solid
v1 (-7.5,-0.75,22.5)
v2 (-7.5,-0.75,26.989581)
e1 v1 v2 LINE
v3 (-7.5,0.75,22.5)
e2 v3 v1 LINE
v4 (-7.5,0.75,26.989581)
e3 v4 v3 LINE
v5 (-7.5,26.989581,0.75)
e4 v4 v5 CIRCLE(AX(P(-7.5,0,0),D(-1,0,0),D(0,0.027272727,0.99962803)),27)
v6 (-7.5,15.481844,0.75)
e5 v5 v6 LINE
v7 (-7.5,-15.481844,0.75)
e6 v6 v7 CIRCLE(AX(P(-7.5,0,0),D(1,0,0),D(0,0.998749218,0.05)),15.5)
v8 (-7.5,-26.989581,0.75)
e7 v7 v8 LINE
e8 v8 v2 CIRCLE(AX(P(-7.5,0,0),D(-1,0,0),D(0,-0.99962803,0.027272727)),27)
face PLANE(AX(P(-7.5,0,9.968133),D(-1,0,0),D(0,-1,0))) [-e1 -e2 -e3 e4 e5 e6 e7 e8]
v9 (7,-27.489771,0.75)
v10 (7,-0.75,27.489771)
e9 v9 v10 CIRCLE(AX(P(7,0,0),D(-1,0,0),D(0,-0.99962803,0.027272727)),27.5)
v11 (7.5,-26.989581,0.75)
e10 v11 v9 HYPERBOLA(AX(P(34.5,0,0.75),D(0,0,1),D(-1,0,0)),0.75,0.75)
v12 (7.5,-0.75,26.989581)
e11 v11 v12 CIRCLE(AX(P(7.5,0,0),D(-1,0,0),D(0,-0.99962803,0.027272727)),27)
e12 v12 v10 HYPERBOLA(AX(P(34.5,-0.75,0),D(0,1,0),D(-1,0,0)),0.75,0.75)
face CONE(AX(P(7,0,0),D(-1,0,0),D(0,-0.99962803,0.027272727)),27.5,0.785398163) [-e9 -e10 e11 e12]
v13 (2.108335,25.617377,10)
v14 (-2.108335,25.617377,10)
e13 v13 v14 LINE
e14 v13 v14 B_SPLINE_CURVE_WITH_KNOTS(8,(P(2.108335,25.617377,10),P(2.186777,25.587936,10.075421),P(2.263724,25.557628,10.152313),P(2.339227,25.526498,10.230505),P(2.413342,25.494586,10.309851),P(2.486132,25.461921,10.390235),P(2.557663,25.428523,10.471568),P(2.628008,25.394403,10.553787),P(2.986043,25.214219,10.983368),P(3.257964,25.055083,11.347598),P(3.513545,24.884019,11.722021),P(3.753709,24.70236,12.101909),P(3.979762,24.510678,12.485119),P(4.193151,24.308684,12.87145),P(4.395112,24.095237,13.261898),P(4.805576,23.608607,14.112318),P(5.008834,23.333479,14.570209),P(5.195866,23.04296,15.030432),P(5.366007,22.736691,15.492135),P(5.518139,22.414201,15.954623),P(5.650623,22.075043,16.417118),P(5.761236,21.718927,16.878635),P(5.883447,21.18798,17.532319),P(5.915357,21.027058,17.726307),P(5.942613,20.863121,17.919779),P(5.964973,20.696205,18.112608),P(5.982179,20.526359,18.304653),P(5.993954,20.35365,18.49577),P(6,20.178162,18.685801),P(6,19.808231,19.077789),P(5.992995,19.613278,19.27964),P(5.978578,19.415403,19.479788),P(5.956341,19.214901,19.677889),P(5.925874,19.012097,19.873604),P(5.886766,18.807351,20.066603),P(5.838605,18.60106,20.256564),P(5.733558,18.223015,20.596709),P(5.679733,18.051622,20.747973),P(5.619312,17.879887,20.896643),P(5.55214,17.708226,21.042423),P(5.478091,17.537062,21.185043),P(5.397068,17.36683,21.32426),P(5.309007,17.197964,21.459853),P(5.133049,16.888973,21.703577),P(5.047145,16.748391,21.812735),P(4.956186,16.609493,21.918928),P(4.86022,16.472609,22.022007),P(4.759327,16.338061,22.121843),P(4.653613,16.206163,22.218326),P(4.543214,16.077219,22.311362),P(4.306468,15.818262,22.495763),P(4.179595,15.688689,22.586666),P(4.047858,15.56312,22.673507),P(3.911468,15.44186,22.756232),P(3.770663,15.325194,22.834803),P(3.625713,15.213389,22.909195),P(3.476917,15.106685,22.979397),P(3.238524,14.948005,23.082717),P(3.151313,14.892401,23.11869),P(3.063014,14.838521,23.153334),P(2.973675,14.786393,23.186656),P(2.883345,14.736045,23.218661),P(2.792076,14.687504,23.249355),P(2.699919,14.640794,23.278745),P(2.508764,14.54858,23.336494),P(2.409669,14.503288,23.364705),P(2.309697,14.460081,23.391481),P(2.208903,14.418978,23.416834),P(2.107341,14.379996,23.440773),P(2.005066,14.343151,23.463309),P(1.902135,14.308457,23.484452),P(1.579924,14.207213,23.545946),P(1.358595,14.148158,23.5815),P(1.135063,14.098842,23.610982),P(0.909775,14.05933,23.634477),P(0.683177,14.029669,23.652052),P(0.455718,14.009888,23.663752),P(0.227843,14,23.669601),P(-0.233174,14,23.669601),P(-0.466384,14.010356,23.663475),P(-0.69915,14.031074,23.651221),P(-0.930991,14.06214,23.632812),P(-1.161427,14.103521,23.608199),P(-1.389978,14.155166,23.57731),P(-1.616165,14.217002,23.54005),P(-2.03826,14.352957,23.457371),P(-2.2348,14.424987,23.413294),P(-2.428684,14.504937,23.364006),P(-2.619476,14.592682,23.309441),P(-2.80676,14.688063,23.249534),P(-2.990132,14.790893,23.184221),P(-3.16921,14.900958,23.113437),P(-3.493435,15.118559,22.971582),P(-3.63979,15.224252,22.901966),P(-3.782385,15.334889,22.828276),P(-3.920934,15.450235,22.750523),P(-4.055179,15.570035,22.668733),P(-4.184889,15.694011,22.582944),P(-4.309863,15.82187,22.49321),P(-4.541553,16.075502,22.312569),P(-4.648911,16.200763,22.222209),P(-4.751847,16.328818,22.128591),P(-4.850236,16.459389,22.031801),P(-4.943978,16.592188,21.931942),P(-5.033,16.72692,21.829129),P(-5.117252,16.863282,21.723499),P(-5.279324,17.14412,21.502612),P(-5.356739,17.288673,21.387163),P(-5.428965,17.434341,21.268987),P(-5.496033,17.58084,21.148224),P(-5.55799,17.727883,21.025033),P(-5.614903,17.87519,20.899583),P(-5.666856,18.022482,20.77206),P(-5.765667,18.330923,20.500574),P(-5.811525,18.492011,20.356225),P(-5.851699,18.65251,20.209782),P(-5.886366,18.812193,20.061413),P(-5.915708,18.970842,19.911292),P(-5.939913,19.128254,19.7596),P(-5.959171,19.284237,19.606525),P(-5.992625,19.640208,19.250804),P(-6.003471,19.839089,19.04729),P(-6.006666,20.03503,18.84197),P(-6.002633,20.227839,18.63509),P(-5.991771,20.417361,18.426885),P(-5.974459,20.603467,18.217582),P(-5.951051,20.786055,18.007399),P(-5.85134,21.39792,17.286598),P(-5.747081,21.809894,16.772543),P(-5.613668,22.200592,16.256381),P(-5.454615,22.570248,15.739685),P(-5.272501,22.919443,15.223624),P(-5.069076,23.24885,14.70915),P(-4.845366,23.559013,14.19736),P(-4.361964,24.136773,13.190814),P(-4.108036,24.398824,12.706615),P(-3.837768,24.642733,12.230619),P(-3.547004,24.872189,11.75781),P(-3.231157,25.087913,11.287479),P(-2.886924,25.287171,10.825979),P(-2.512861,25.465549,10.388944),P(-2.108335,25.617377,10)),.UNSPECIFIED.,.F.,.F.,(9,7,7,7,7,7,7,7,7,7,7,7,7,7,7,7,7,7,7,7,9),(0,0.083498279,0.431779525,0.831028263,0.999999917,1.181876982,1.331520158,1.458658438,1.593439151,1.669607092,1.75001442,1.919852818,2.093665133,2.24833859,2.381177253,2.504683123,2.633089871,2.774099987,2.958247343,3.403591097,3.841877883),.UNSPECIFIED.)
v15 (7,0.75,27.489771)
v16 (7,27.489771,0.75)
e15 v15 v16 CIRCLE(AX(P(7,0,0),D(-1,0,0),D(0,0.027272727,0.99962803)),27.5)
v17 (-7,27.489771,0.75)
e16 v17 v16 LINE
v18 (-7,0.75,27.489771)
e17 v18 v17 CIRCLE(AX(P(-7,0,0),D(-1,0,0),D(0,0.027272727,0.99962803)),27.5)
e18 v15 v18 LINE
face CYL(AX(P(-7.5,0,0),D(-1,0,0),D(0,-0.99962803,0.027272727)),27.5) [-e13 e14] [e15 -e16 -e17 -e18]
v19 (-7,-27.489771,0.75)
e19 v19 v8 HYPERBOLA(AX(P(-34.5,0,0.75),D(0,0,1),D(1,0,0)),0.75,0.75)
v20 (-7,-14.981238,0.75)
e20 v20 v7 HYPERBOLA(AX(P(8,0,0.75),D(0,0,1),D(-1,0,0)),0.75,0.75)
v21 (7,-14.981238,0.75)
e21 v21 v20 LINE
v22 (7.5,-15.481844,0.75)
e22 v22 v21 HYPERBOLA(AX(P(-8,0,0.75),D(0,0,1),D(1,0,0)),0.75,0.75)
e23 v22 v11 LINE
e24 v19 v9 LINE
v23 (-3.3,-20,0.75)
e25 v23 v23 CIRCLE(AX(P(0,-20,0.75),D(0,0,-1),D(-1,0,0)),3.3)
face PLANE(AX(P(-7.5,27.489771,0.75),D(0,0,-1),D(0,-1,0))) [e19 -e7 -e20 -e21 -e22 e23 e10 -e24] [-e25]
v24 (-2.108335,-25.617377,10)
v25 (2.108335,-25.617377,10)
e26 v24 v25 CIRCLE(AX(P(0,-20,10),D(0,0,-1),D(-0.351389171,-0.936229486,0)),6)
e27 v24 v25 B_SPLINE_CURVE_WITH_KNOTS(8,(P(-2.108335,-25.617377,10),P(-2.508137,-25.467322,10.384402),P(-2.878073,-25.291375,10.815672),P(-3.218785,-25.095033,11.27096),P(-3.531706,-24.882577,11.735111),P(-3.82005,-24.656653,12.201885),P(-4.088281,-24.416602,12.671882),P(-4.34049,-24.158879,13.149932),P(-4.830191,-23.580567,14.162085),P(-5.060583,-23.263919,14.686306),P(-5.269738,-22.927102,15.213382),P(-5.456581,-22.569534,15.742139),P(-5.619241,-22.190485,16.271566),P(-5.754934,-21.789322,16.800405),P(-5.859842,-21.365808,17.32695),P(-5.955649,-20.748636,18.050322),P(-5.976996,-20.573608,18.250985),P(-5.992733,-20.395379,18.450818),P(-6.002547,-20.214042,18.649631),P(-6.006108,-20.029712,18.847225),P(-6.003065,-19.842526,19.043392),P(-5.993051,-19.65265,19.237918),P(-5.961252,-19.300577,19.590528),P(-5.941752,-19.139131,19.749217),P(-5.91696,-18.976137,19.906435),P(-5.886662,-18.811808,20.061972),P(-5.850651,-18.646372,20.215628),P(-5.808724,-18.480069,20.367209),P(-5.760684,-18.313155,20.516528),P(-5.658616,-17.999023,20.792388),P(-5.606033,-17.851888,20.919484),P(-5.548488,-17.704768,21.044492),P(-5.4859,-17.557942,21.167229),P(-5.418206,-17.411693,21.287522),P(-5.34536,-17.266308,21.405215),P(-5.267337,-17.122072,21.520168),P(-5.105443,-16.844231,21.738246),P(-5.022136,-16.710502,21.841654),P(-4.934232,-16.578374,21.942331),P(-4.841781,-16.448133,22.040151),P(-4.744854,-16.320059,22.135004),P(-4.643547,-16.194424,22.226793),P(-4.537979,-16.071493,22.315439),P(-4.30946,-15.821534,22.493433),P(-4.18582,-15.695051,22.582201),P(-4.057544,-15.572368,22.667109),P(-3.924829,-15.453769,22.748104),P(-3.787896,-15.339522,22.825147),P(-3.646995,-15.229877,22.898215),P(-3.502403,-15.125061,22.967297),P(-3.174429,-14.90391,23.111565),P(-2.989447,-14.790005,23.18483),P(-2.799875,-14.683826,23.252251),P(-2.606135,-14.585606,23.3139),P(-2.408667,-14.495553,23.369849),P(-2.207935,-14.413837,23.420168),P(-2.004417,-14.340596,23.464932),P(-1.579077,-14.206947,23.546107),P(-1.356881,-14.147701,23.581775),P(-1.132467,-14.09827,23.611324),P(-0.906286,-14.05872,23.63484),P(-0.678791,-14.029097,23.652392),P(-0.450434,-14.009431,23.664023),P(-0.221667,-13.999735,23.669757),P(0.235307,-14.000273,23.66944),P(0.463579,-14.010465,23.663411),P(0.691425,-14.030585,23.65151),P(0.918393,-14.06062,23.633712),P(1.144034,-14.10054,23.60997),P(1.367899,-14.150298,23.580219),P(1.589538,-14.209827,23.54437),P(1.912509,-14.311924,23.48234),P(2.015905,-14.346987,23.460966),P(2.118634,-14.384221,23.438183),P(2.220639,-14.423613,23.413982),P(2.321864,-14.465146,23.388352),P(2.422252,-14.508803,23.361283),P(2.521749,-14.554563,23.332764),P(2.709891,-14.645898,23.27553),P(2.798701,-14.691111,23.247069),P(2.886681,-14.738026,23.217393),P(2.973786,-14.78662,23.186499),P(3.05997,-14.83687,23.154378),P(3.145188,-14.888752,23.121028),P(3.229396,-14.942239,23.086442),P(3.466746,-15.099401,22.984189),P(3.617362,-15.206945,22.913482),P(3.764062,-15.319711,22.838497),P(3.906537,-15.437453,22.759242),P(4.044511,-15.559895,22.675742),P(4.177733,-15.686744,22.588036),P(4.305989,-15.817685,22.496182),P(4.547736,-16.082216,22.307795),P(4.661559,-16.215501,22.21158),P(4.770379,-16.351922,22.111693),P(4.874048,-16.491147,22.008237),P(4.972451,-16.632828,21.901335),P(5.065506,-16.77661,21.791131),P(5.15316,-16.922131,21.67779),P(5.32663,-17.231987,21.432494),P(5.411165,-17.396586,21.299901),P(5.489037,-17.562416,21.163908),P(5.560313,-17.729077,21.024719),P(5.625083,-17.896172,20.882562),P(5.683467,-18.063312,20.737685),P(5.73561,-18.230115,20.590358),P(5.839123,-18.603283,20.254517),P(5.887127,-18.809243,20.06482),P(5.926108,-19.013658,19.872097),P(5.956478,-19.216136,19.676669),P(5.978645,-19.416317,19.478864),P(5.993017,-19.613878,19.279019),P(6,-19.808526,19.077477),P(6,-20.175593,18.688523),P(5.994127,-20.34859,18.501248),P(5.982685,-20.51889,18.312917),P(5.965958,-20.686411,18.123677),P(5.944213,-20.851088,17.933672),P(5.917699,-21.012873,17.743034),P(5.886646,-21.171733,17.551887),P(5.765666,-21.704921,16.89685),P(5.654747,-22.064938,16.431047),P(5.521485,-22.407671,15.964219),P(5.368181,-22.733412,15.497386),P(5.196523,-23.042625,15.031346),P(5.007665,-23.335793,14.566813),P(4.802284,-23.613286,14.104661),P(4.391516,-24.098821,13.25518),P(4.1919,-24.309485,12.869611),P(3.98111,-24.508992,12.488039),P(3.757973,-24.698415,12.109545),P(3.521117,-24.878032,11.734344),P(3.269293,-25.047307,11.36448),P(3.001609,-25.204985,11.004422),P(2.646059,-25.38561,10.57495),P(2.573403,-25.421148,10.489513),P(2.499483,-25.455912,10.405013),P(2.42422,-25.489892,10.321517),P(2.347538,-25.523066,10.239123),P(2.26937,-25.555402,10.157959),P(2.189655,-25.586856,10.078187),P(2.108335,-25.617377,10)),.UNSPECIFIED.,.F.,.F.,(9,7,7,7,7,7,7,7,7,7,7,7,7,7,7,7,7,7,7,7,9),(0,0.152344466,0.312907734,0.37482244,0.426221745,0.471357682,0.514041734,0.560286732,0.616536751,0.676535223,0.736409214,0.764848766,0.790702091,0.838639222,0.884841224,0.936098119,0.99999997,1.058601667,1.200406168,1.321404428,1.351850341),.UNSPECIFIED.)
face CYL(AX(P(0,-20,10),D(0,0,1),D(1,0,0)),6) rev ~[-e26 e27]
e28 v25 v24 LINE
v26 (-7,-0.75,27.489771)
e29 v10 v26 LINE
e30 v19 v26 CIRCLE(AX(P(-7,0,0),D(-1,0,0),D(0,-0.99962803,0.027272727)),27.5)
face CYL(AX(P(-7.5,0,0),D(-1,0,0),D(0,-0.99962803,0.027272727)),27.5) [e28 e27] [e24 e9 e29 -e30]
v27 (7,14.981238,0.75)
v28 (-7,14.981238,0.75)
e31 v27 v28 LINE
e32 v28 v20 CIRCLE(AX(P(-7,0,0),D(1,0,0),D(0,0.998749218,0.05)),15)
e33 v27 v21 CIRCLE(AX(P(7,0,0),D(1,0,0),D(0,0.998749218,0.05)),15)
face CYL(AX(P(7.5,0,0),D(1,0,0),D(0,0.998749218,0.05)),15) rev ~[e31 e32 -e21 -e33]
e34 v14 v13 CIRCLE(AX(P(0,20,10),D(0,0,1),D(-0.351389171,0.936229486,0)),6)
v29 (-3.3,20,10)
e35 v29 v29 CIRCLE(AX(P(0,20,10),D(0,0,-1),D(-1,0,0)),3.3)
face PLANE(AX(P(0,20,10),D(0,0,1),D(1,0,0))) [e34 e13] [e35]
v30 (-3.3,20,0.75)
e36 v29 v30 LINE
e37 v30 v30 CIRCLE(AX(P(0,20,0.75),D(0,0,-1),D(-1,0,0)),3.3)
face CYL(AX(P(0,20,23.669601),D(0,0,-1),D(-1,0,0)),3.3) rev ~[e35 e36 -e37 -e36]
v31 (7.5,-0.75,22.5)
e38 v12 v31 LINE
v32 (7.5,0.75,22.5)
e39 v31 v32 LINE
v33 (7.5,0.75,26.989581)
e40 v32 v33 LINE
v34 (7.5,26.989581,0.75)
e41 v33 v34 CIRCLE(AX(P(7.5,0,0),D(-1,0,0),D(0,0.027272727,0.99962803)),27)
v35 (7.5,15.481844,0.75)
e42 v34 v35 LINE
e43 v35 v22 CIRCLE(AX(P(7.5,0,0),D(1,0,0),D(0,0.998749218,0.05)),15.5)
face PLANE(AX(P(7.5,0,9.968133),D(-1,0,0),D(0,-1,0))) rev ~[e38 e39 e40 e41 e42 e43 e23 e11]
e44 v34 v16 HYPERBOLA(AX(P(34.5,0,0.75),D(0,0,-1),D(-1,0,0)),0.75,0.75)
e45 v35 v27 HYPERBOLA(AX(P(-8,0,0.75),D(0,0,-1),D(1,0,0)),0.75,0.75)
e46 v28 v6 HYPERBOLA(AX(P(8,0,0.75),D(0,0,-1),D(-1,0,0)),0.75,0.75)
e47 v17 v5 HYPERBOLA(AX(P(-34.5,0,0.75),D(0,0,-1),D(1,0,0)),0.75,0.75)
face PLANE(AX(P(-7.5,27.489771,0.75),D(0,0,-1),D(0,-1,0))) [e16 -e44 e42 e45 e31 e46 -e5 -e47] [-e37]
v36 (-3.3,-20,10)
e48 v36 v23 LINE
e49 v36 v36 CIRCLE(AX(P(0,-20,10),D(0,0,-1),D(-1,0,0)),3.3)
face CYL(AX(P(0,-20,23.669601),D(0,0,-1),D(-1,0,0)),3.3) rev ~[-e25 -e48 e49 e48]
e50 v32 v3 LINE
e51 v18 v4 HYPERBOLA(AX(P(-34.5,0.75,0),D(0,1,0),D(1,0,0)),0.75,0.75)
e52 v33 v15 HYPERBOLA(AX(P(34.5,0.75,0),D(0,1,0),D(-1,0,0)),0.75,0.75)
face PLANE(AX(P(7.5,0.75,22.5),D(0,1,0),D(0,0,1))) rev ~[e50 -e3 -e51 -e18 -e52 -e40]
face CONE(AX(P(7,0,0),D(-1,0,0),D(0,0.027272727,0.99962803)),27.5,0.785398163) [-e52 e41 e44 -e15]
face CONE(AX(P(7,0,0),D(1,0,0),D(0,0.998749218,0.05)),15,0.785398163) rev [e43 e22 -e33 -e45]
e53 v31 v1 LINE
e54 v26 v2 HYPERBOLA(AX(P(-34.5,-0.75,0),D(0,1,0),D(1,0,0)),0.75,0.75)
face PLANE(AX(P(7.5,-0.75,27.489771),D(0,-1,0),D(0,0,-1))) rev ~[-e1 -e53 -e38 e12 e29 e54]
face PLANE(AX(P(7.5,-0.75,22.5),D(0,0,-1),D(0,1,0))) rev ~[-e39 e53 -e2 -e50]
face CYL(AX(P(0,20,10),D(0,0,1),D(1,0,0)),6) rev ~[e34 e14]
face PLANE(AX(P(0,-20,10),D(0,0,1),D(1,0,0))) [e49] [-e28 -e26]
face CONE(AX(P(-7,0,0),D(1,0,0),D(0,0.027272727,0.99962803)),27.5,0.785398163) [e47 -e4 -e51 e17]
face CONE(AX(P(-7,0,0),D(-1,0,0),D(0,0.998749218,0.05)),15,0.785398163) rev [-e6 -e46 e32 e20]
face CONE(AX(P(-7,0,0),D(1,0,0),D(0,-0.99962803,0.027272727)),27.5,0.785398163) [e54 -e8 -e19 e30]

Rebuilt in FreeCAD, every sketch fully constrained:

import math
import FreeCAD as App
import Part
import Sketcher


def edges_at(feature, points):
    """Names of the edges that pass closest to the given points."""
    edges = feature.Shape.Edges
    near = lambda p: min(range(len(edges)), key=lambda i: edges[i].distToShape(Part.Vertex(*p))[0])
    return sorted({f"Edge{near(p) + 1}" for p in points})

doc = App.newDocument("Part")
body = doc.addObject("PartDesign::Body", "Body")

# Sketch on YZ plane
sketch1 = body.newObject("Sketcher::SketchObject", "Sketch")
sketch1.AttachmentSupport = (doc.getObject("YZ_Plane"), [""])
sketch1.MapMode = "FlatFace"
sketch1.AttachmentOffset = App.Placement(App.Vector(0, 0, -7.5), App.Rotation())
sketch1.addGeometry(Part.LineSegment(App.Vector(27, 1, 0), App.Vector(-27, 1, 0)), False)
sketch1.addGeometry(Part.ArcOfCircle(Part.Circle(App.Vector(0, 0, 0), App.Vector(0, 0, 1), 28), math.radians(2), math.radians(178)), False)
sketch1.addConstraint(Sketcher.Constraint("Coincident", 0, 1, 1, 1))
sketch1.addConstraint(Sketcher.Constraint("Coincident", 1, 2, 0, 2))
sketch1.addConstraint(Sketcher.Constraint("Horizontal", 0))
sketch1.addConstraint(Sketcher.Constraint("Coincident", 1, 3, -1, 1))
sketch1.addConstraint(Sketcher.Constraint("Radius", 1, 27.5))
sketch1.addConstraint(Sketcher.Constraint("DistanceY", -1, 1, 0, 1, 0.75))
pad1 = body.newObject("PartDesign::Pad", "Pad")
pad1.Profile = sketch1
pad1.Length = 15

# Sketch on YZ plane
sketch2 = body.newObject("Sketcher::SketchObject", "Sketch001")
sketch2.AttachmentSupport = (doc.getObject("YZ_Plane"), [""])
sketch2.MapMode = "FlatFace"
sketch2.AttachmentOffset = App.Placement(App.Vector(0, 0, 7.5), App.Rotation())
sketch2.addGeometry(Part.LineSegment(App.Vector(-0.8, 27.5, 0), App.Vector(-0.8, 22.5, 0)), False)
sketch2.addGeometry(Part.LineSegment(App.Vector(-0.8, 22.5, 0), App.Vector(0.8, 22.5, 0)), False)
sketch2.addGeometry(Part.LineSegment(App.Vector(0.8, 22.5, 0), App.Vector(0.8, 27.5, 0)), False)
sketch2.addGeometry(Part.ArcOfCircle(Part.Circle(App.Vector(0, 0, 0), App.Vector(0, 0, 1), 27.5), math.radians(88.44), math.radians(91.56)), False)
sketch2.addConstraint(Sketcher.Constraint("Coincident", 0, 2, 1, 1))
sketch2.addConstraint(Sketcher.Constraint("Coincident", 1, 2, 2, 1))
sketch2.addConstraint(Sketcher.Constraint("Coincident", 2, 2, 3, 1))
sketch2.addConstraint(Sketcher.Constraint("Coincident", 3, 2, 0, 1))
sketch2.addConstraint(Sketcher.Constraint("Vertical", 0))
sketch2.addConstraint(Sketcher.Constraint("Horizontal", 1))
sketch2.addConstraint(Sketcher.Constraint("Vertical", 2))
sketch2.addConstraint(Sketcher.Constraint("Coincident", 3, 3, -1, 1))
sketch2.addConstraint(Sketcher.Constraint("Horizontal", 2, 2, 3, 2))
sketch2.addConstraint(Sketcher.Constraint("Radius", 3, 27.500001))
sketch2.addConstraint(Sketcher.Constraint("DistanceX", 1, 1, 1, 2, 1.5))
sketch2.addConstraint(Sketcher.Constraint("DistanceY", -1, 1, 0, 2, 22.5))
pocket1 = body.newObject("PartDesign::Pocket", "Pocket")
pocket1.Profile = sketch2
pocket1.Type = "ThroughAll"

# Sketch on YZ plane
sketch3 = body.newObject("Sketcher::SketchObject", "Sketch002")
sketch3.AttachmentSupport = (doc.getObject("YZ_Plane"), [""])
sketch3.MapMode = "FlatFace"
sketch3.AttachmentOffset = App.Placement(App.Vector(0, 0, 7.5), App.Rotation())
sketch3.addGeometry(Part.LineSegment(App.Vector(-15, 1, 0), App.Vector(15, 1, 0)), False)
sketch3.addGeometry(Part.ArcOfCircle(Part.Circle(App.Vector(0, 0, 0), App.Vector(0, 0, 1), 15), math.radians(3), math.radians(177)), False)
sketch3.addConstraint(Sketcher.Constraint("Coincident", 0, 1, 1, 2))
sketch3.addConstraint(Sketcher.Constraint("Coincident", 1, 1, 0, 2))
sketch3.addConstraint(Sketcher.Constraint("Horizontal", 0))
sketch3.addConstraint(Sketcher.Constraint("Coincident", 1, 3, -1, 1))
sketch3.addConstraint(Sketcher.Constraint("Radius", 1, 15.0))
sketch3.addConstraint(Sketcher.Constraint("DistanceY", -1, 1, 0, 1, 0.75))
pocket2 = body.newObject("PartDesign::Pocket", "Pocket001")
pocket2.Profile = sketch3
pocket2.Type = "ThroughAll"

# Sketch on XY plane
sketch4 = body.newObject("Sketcher::SketchObject", "Sketch003")
sketch4.AttachmentSupport = (doc.getObject("XY_Plane"), [""])
sketch4.MapMode = "FlatFace"
sketch4.AttachmentOffset = App.Placement(App.Vector(0, 0, 23.669601), App.Rotation())
sketch4.addGeometry(Part.Circle(App.Vector(0, -20, 0), App.Vector(0, 0, 1), 3.3), False)
sketch4.addGeometry(Part.Circle(App.Vector(0, 20, 0), App.Vector(0, 0, 1), 3.3), False)
sketch4.addConstraint(Sketcher.Constraint("Equal", 0, 1))
sketch4.addConstraint(Sketcher.Constraint("Symmetric", 0, 3, 1, 3, -1, 1))
sketch4.addConstraint(Sketcher.Constraint("PointOnObject", 0, 3, -2))
sketch4.addConstraint(Sketcher.Constraint("Diameter", 0, 6.6))
sketch4.addConstraint(Sketcher.Constraint("DistanceY", 0, 3, -1, 1, 20.0))
doc.recompute()
hole = body.newObject("PartDesign::Hole", "Hole")
hole.Profile = sketch4
hole.ThreadType = "None"
hole.Diameter = 6.6
hole.DepthType = "ThroughAll"
hole.HoleCutType = "Counterbore"
hole.HoleCutDiameter = 12
hole.HoleCutDepth = 13.669601
doc.recompute()

chamfer = body.newObject("PartDesign::Chamfer", "Chamfer")
chamfer.Base = (hole, edges_at(hole, [
    (7.5, 19.445, 19.445),
    (-7.5, 0, 15),
    (7.5, 0, 15),
    (-7.5, -19.445, 19.445),
    (7.5, -19.445, 19.445),
    (-7.5, 19.445, 19.445),
]))
chamfer.Size = 0.5

doc.recompute()
